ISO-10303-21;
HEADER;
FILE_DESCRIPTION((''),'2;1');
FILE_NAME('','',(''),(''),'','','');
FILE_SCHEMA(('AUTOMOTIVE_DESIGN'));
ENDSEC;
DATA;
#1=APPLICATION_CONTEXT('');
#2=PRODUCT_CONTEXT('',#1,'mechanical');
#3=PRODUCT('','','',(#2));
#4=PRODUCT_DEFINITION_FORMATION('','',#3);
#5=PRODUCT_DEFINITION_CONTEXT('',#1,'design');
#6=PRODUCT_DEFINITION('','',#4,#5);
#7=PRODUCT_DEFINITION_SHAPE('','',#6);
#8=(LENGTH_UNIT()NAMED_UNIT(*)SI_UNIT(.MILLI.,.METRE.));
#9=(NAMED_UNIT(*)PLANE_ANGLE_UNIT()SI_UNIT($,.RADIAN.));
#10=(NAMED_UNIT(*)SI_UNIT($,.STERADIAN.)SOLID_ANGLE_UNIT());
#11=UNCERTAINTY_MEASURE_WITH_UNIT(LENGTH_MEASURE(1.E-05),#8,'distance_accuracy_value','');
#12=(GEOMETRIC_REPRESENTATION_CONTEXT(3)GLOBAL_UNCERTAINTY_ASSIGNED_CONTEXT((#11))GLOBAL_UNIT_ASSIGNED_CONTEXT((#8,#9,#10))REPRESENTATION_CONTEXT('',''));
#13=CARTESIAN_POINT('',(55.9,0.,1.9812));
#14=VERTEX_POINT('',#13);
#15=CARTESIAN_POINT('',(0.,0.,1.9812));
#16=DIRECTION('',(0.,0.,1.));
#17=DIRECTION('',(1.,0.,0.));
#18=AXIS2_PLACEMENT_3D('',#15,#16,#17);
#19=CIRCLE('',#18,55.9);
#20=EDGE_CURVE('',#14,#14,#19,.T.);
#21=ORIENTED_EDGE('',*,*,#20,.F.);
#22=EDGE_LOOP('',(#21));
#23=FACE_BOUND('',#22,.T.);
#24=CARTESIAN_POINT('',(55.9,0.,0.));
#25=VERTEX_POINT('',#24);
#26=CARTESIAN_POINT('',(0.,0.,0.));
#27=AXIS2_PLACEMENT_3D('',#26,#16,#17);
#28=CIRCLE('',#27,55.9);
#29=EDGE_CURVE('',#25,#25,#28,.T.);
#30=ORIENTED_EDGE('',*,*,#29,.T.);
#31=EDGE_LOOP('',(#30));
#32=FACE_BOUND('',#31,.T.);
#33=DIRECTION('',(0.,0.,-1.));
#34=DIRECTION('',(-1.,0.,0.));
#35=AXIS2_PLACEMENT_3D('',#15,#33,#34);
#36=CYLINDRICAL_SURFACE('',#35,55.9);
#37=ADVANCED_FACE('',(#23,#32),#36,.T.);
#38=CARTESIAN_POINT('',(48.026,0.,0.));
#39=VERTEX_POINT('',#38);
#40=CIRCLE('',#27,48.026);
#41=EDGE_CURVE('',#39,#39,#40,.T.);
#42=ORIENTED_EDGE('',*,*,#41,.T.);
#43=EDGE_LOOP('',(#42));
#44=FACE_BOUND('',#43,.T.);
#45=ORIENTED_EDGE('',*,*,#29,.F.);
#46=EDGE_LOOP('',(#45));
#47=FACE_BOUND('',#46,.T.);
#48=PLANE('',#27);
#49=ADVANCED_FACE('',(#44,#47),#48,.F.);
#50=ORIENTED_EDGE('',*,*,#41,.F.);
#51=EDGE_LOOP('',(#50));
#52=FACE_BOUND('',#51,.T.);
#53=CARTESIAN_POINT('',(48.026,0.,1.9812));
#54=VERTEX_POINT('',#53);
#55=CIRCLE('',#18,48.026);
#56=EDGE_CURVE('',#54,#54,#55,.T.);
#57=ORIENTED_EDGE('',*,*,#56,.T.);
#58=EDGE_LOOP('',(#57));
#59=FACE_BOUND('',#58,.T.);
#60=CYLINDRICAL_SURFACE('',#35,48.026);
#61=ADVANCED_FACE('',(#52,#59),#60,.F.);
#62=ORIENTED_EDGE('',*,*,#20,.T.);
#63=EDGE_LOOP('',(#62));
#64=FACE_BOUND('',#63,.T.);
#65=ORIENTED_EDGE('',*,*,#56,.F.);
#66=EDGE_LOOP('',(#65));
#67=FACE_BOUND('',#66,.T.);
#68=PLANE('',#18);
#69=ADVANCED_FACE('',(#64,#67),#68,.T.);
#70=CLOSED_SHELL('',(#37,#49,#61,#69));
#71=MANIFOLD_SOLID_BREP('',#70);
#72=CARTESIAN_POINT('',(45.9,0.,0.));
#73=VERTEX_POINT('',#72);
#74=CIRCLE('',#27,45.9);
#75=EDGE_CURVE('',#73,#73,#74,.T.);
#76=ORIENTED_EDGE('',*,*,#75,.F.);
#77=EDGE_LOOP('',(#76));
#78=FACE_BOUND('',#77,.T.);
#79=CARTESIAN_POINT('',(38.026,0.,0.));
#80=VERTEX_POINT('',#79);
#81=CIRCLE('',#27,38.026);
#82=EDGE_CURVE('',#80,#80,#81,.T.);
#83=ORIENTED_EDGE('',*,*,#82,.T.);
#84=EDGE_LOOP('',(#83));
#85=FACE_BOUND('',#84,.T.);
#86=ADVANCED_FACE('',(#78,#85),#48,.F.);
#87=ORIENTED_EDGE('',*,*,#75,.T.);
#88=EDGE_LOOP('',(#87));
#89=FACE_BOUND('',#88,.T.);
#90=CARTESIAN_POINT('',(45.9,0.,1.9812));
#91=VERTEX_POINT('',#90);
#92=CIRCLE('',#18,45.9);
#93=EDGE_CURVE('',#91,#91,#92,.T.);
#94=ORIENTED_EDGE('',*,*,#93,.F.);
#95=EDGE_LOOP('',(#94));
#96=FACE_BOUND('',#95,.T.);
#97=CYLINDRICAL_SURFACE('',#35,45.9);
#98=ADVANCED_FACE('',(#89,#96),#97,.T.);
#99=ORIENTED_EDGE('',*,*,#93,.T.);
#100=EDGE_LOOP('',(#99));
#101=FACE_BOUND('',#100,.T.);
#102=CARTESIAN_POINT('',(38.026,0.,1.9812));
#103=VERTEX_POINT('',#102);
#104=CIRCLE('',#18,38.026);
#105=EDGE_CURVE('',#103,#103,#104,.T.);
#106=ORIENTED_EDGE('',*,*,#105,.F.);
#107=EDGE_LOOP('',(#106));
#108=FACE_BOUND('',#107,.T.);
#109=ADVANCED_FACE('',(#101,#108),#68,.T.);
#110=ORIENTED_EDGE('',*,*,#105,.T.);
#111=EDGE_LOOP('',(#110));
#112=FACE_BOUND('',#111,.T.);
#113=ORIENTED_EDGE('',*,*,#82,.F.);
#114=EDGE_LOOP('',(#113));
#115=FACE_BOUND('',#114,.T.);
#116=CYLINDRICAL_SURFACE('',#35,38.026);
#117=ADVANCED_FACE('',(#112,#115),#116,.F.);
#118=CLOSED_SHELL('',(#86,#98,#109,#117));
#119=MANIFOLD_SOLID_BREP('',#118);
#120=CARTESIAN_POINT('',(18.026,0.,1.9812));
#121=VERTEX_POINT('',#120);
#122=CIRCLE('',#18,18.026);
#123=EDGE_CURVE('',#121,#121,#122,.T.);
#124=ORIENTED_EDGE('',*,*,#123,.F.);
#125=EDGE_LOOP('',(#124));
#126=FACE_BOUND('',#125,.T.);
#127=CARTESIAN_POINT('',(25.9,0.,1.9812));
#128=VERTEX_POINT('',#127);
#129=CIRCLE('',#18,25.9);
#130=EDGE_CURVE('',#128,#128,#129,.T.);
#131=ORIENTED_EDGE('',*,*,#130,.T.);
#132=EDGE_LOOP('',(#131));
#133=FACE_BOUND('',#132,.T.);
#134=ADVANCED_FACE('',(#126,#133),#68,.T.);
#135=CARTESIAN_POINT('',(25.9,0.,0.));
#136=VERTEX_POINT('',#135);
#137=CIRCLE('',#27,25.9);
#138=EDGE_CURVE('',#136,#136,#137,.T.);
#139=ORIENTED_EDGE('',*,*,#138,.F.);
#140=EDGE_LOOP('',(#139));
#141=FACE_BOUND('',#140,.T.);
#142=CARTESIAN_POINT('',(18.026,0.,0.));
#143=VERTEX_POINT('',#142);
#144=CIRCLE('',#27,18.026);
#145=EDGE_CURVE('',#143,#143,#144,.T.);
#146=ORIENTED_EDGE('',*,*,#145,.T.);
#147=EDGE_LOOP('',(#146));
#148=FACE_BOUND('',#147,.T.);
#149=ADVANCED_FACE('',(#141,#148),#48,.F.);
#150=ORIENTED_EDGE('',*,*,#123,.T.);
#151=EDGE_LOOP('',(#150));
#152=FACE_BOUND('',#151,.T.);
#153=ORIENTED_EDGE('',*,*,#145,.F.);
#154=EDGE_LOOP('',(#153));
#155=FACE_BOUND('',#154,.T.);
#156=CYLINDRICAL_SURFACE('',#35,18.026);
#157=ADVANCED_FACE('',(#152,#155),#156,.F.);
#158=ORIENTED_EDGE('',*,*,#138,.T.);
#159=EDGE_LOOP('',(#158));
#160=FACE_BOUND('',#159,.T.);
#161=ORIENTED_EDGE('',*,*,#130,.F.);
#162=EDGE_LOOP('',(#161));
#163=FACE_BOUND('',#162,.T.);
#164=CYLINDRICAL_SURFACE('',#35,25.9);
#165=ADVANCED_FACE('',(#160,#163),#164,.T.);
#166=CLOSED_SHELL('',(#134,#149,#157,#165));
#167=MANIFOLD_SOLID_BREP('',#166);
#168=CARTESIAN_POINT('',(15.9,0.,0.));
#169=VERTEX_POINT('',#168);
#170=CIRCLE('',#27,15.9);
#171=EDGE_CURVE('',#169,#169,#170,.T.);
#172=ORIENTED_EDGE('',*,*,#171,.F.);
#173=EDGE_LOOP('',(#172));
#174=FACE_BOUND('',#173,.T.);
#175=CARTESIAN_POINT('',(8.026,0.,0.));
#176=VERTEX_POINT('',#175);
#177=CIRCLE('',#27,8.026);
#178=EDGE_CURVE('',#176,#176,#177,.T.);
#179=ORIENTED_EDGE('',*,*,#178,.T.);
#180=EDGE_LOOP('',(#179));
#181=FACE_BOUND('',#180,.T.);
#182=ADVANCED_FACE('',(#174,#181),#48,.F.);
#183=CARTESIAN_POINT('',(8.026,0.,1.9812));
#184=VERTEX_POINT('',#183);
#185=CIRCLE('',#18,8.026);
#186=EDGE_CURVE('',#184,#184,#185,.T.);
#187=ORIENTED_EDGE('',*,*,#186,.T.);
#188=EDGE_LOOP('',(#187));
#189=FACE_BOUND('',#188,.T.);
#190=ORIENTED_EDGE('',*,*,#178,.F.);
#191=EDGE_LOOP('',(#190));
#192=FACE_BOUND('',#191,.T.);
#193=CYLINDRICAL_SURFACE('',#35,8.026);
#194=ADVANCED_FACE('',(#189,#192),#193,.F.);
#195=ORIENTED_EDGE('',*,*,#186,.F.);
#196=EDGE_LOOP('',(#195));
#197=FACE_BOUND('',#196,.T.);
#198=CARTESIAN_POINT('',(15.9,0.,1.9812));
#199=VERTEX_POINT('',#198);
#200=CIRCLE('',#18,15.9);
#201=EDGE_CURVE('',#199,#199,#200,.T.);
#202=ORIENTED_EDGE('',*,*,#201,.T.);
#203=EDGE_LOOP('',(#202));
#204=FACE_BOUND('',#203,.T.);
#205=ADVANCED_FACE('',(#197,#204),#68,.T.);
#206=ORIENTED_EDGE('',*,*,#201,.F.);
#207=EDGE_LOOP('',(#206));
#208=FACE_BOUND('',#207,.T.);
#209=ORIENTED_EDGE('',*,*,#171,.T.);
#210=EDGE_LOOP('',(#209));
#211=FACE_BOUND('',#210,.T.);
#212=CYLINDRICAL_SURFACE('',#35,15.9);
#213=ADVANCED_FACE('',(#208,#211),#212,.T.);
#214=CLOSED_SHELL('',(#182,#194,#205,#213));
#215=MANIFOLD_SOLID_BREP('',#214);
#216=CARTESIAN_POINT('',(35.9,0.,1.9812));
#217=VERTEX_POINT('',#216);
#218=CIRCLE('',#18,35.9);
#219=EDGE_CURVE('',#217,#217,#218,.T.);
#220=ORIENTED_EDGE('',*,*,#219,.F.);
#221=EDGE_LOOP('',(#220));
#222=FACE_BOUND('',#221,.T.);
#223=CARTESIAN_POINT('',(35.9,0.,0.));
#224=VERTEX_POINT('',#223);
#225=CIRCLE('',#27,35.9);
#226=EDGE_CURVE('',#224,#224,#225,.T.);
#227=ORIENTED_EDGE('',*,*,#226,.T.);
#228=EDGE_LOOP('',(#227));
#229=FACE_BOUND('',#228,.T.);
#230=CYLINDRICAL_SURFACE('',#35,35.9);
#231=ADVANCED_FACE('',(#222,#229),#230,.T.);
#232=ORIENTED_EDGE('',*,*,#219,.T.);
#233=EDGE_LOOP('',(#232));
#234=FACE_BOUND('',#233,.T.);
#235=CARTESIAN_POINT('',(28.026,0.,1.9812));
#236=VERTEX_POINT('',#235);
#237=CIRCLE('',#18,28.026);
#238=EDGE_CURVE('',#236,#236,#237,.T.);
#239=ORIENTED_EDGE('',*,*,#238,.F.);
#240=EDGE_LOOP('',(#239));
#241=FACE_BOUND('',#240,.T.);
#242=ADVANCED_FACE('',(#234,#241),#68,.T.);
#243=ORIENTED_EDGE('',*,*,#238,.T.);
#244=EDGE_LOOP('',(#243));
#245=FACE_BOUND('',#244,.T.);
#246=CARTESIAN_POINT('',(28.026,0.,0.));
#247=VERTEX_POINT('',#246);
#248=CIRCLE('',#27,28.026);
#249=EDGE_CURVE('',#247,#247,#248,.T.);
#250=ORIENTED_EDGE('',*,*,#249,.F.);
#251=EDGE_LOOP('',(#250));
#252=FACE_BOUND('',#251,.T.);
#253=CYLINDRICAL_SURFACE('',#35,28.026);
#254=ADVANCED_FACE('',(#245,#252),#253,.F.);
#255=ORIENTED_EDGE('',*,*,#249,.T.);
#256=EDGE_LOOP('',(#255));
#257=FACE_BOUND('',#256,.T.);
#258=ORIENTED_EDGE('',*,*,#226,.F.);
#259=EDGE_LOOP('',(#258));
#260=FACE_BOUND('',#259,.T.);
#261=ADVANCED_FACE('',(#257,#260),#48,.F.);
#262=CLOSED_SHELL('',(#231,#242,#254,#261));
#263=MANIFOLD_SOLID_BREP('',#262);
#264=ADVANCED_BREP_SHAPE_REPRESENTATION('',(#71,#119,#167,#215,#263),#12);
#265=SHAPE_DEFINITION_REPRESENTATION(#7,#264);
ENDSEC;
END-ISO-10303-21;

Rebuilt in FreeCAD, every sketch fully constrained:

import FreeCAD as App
import Part
import Sketcher

V = App.Vector

doc = App.newDocument("Part")
body = doc.addObject("PartDesign::Body", "Body")

# Sketch on XY plane
sketch1 = body.newObject("Sketcher::SketchObject", "Sketch")
sketch1.AttachmentSupport = (doc.getObject("XY_Plane"), [""])
sketch1.MapMode = "FlatFace"
sketch1.addGeometry(Part.Circle(V(0, 0, 0), V(0, 0, 1), 55.9), False)
sketch1.addGeometry(Part.Circle(V(0, 0, 0), V(0, 0, 1), 48.026), False)
sketch1.addConstraint(Sketcher.Constraint("Coincident", 0, 3, -1, 1))
sketch1.addConstraint(Sketcher.Constraint("Coincident", 1, 3, -1, 1))
sketch1.addConstraint(Sketcher.Constraint("Diameter", 0, 111.8))
sketch1.addConstraint(Sketcher.Constraint("Diameter", 1, 96.052))
pad1 = body.newObject("PartDesign::Pad", "Pad")
pad1.Profile = sketch1
pad1.Length = 1.9812
body2 = doc.addObject("PartDesign::Body", "Body001")

# Sketch on XY plane
sketch2 = body2.newObject("Sketcher::SketchObject", "Sketch001")
sketch2.AttachmentSupport = (doc.getObject("XY_Plane001"), [""])
sketch2.MapMode = "FlatFace"
sketch2.addGeometry(Part.Circle(V(0, 0, 0), V(0, 0, 1), 45.9), False)
sketch2.addGeometry(Part.Circle(V(0, 0, 0), V(0, 0, 1), 38.026), False)
sketch2.addConstraint(Sketcher.Constraint("Coincident", 0, 3, -1, 1))
sketch2.addConstraint(Sketcher.Constraint("Coincident", 1, 3, -1, 1))
sketch2.addConstraint(Sketcher.Constraint("Diameter", 0, 91.8))
sketch2.addConstraint(Sketcher.Constraint("Diameter", 1, 76.052))
pad2 = body2.newObject("PartDesign::Pad", "Pad001")
pad2.Profile = sketch2
pad2.Length = 1.9812
body3 = doc.addObject("PartDesign::Body", "Body002")

# Sketch on XY plane
sketch3 = body3.newObject("Sketcher::SketchObject", "Sketch002")
sketch3.AttachmentSupport = (doc.getObject("XY_Plane002"), [""])
sketch3.MapMode = "FlatFace"
sketch3.addGeometry(Part.Circle(V(0, 0, 0), V(0, 0, 1), 35.9), False)
sketch3.addGeometry(Part.Circle(V(0, 0, 0), V(0, 0, 1), 28.026), False)
sketch3.addConstraint(Sketcher.Constraint("Coincident", 0, 3, -1, 1))
sketch3.addConstraint(Sketcher.Constraint("Coincident", 1, 3, -1, 1))
sketch3.addConstraint(Sketcher.Constraint("Diameter", 0, 71.8))
sketch3.addConstraint(Sketcher.Constraint("Diameter", 1, 56.052))
pad3 = body3.newObject("PartDesign::Pad", "Pad002")
pad3.Profile = sketch3
pad3.Length = 1.9812
body4 = doc.addObject("PartDesign::Body", "Body003")

# Sketch on XY plane
sketch4 = body4.newObject("Sketcher::SketchObject", "Sketch003")
sketch4.AttachmentSupport = (doc.getObject("XY_Plane003"), [""])
sketch4.MapMode = "FlatFace"
sketch4.addGeometry(Part.Circle(V(0, 0, 0), V(0, 0, 1), 25.9), False)
sketch4.addGeometry(Part.Circle(V(0, 0, 0), V(0, 0, 1), 18.026), False)
sketch4.addConstraint(Sketcher.Constraint("Coincident", 0, 3, -1, 1))
sketch4.addConstraint(Sketcher.Constraint("Coincident", 1, 3, -1, 1))
sketch4.addConstraint(Sketcher.Constraint("Diameter", 0, 51.8))
sketch4.addConstraint(Sketcher.Constraint("Diameter", 1, 36.052))
pad4 = body4.newObject("PartDesign::Pad", "Pad003")
pad4.Profile = sketch4
pad4.Length = 1.9812
body5 = doc.addObject("PartDesign::Body", "Body004")

# Sketch on XY plane
sketch5 = body5.newObject("Sketcher::SketchObject", "Sketch004")
sketch5.AttachmentSupport = (doc.getObject("XY_Plane004"), [""])
sketch5.MapMode = "FlatFace"
sketch5.addGeometry(Part.Circle(V(0, 0, 0), V(0, 0, 1), 15.9), False)
sketch5.addGeometry(Part.Circle(V(0, 0, 0), V(0, 0, 1), 8.026), False)
sketch5.addConstraint(Sketcher.Constraint("Coincident", 0, 3, -1, 1))
sketch5.addConstraint(Sketcher.Constraint("Coincident", 1, 3, -1, 1))
sketch5.addConstraint(Sketcher.Constraint("Diameter", 0, 31.8))
sketch5.addConstraint(Sketcher.Constraint("Diameter", 1, 16.052))
pad5 = body5.newObject("PartDesign::Pad", "Pad004")
pad5.Profile = sketch5
pad5.Length = 1.9812

doc.recompute()
